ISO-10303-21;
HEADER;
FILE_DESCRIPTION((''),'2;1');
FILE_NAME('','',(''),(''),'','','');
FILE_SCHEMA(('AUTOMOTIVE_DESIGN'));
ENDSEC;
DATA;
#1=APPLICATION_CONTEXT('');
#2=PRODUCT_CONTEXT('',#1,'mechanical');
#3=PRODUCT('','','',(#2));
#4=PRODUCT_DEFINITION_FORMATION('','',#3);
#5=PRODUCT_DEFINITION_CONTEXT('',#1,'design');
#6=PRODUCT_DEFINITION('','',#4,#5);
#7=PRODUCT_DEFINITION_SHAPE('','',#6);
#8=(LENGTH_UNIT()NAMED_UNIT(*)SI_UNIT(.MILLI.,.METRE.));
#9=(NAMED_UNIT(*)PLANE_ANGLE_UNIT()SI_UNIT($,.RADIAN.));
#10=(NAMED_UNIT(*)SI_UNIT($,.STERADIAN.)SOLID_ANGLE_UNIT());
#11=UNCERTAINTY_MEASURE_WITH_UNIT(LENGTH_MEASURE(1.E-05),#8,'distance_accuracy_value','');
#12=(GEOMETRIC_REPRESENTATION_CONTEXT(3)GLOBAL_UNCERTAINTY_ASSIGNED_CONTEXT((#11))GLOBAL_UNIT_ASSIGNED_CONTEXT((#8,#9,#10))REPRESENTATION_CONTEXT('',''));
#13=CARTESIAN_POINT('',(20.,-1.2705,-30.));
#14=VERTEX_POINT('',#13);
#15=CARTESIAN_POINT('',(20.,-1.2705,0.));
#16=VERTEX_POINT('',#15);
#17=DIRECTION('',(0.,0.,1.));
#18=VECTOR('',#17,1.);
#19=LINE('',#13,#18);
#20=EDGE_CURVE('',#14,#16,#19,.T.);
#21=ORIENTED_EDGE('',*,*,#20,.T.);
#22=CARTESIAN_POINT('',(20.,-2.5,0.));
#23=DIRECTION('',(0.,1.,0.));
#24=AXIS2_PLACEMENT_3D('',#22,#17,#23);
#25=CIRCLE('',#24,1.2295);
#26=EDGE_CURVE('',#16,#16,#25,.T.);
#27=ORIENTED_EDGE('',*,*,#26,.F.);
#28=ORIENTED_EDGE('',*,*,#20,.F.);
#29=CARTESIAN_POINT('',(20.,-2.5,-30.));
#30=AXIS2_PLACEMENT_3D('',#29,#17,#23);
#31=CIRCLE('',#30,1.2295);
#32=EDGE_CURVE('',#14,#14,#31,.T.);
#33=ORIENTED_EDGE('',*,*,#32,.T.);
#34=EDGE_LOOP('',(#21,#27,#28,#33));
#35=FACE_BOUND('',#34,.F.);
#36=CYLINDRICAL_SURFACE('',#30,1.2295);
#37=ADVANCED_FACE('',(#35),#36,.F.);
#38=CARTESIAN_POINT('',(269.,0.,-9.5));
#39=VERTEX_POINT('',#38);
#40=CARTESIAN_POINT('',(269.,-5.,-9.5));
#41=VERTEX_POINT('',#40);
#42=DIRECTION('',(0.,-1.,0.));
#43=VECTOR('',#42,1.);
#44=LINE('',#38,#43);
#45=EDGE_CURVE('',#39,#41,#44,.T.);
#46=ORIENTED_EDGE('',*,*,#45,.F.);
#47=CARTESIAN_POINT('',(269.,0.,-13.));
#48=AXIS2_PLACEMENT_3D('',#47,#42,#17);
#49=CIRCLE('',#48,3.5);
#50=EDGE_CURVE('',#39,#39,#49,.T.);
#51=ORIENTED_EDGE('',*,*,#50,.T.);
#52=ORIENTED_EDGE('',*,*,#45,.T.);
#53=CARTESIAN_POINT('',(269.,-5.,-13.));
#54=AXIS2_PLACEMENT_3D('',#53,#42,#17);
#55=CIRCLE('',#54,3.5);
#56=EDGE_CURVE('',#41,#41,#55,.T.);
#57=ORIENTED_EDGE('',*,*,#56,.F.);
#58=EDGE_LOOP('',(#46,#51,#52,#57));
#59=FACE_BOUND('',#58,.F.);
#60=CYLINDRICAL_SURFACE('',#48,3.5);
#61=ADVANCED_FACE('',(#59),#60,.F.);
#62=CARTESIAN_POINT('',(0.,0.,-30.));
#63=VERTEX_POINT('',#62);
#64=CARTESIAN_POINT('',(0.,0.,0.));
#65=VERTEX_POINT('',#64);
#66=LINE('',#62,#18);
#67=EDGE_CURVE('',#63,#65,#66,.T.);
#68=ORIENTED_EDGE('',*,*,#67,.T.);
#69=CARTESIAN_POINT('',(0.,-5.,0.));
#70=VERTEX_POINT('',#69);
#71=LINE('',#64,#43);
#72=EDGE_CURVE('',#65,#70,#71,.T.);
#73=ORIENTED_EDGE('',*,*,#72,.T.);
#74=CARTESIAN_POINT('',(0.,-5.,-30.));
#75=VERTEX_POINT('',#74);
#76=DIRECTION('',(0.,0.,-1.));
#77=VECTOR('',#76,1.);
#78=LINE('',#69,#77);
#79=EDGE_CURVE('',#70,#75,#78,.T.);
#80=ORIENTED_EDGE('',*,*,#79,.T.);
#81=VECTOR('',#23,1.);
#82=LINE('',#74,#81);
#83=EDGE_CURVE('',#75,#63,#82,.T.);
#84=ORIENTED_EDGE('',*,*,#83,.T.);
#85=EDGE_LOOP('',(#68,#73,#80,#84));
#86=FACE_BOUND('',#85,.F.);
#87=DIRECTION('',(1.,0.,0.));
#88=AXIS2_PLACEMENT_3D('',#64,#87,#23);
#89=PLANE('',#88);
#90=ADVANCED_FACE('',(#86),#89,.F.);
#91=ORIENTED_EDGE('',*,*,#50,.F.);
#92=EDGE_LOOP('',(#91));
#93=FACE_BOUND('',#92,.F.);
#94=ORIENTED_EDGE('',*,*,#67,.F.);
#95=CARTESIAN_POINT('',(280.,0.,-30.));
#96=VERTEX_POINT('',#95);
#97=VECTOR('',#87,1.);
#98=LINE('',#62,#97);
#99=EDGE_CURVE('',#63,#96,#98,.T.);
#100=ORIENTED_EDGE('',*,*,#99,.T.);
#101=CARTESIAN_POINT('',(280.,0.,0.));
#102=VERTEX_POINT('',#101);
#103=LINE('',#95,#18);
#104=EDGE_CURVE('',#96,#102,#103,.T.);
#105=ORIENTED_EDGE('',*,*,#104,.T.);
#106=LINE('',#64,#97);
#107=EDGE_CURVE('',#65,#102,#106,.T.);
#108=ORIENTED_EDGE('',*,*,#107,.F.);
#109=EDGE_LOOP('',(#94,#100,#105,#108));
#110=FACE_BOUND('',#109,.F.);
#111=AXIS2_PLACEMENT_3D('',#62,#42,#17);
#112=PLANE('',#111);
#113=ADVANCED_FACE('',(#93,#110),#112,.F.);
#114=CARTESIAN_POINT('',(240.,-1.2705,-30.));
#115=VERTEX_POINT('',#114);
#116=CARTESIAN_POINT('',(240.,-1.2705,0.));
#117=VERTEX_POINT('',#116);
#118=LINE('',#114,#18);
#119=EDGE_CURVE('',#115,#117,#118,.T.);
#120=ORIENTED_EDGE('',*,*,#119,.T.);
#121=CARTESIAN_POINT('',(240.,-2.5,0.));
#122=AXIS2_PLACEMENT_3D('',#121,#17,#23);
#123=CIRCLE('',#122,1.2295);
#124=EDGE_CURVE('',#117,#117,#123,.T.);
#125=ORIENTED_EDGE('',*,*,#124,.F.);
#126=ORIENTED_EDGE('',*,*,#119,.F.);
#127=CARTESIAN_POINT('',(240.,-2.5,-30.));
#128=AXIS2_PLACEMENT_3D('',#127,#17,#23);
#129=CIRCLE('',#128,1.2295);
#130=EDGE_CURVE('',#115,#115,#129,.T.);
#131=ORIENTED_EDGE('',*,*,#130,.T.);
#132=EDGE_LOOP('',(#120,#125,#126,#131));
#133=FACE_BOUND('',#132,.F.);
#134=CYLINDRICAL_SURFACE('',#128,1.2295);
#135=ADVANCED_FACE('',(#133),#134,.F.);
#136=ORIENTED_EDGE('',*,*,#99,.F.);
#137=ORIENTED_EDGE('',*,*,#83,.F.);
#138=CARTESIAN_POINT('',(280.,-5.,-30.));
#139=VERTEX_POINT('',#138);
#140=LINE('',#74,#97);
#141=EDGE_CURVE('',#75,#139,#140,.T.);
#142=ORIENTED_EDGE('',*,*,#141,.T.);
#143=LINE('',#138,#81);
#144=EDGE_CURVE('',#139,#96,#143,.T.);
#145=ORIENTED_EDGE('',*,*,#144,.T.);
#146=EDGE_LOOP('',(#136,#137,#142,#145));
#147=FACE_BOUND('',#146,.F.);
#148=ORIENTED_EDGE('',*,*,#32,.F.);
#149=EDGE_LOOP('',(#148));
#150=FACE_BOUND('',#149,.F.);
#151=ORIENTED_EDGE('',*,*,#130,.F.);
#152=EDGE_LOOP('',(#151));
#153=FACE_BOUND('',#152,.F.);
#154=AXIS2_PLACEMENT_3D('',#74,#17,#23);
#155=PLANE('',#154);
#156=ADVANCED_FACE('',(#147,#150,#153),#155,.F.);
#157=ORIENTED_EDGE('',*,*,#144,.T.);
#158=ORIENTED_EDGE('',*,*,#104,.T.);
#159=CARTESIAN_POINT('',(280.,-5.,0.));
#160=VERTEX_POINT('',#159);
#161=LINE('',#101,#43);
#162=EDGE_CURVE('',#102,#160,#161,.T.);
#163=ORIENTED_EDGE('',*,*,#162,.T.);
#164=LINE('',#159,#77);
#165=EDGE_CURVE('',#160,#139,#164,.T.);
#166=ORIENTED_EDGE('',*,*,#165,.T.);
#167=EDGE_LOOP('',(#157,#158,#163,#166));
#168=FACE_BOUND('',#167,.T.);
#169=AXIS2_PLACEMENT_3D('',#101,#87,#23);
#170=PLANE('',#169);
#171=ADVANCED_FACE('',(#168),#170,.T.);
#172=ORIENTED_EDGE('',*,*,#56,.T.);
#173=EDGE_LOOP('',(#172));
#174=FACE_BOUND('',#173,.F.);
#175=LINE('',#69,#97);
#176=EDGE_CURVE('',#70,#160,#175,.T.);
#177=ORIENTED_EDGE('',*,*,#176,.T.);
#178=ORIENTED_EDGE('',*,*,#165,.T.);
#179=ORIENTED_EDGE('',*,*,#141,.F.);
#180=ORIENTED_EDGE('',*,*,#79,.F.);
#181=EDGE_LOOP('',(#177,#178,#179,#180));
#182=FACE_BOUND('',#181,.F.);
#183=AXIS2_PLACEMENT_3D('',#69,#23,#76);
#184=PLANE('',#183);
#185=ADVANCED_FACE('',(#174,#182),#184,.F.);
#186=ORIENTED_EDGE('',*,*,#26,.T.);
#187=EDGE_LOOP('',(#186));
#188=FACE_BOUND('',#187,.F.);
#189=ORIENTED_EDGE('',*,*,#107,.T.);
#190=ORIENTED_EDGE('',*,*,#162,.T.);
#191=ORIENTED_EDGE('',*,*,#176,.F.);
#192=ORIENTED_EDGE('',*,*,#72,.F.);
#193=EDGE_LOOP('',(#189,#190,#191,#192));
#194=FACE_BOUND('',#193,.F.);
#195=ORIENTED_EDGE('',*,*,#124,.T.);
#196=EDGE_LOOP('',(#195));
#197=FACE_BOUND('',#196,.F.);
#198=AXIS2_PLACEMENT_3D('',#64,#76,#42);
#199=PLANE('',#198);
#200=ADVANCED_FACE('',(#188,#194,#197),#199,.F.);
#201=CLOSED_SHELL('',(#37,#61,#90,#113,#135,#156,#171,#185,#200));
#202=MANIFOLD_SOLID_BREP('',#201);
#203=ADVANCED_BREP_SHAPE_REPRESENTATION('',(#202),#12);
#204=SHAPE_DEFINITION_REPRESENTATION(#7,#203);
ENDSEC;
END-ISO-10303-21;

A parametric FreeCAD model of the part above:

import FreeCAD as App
import Part
import Sketcher
Q = App.Units.Quantity


def add_polygon(sketch, points):
    """Adds a closed chain of lines whose ends are joined by coincident constraints."""
    first, n = sketch.GeometryCount, len(points)
    for a, b in zip(points, points[1:] + points[:1]):
        sketch.addGeometry(Part.LineSegment(App.Vector(*a, 0), App.Vector(*b, 0)), False)
    for i in range(n):
        sketch.addConstraint(Sketcher.Constraint("Coincident", first + i, 2, first + (i + 1) % n, 1))

doc = App.newDocument("Part")
body = doc.addObject("PartDesign::Body", "Body")

# Sketch on YZ plane
sketch1 = body.newObject("Sketcher::SketchObject", "Sketch")
sketch1.AttachmentSupport = (doc.getObject("YZ_Plane"), [""])
sketch1.MapMode = "FlatFace"
add_polygon(sketch1, [(0, -30), (0, 0), (-5, 0), (-5, -30)])  # lines 0-3
sketch1.addConstraint(Sketcher.Constraint("Vertical", 0))
sketch1.addConstraint(Sketcher.Constraint("Horizontal", 1))
sketch1.addConstraint(Sketcher.Constraint("Vertical", 2))
sketch1.addConstraint(Sketcher.Constraint("Horizontal", 3))
sketch1.addConstraint(Sketcher.Constraint("Coincident", 0, 2, -1, 1))
sketch1.addConstraint(Sketcher.Constraint("DistanceX", 1, 2, 1, 1, Q("5 mm")))
sketch1.addConstraint(Sketcher.Constraint("DistanceY", 0, 1, 0, 2, Q("30 mm")))
pad1 = body.newObject("PartDesign::Pad", "Pad")
pad1.Profile = sketch1
pad1.Length = 280

# Sketch on XY plane
sketch2 = body.newObject("Sketcher::SketchObject", "Sketch001")
sketch2.AttachmentSupport = (doc.getObject("XY_Plane"), [""])
sketch2.MapMode = "FlatFace"
sketch2.AttachmentOffset = App.Placement(App.Vector(0, 0, -30), App.Rotation())
sketch2.addGeometry(Part.Circle(App.Vector(20, -2.5, 0), App.Vector(0, 0, 1), 1.2), False)
sketch2.addGeometry(Part.Circle(App.Vector(240, -2.5, 0), App.Vector(0, 0, 1), 1.2), False)
sketch2.addConstraint(Sketcher.Constraint("Equal", 0, 1))
sketch2.addConstraint(Sketcher.Constraint("Horizontal", 0, 3, 1, 3))
sketch2.addConstraint(Sketcher.Constraint("Diameter", 0, Q("2.459 mm")))
sketch2.addConstraint(Sketcher.Constraint("DistanceX", -1, 1, 0, 3, Q("20 mm")))
sketch2.addConstraint(Sketcher.Constraint("DistanceX", -1, 1, 1, 3, Q("240 mm")))
sketch2.addConstraint(Sketcher.Constraint("DistanceY", 0, 3, -1, 1, Q("2.5 mm")))
doc.recompute()
hole = body.newObject("PartDesign::Hole", "Hole")
hole.Profile = sketch2
hole.ThreadType = "None"
hole.Diameter = 2.459
hole.DepthType = "ThroughAll"
hole.Reversed = True

# Sketch on XZ plane
sketch3 = body.newObject("Sketcher::SketchObject", "Sketch002")
sketch3.AttachmentSupport = (doc.getObject("XZ_Plane"), [""])
sketch3.MapMode = "FlatFace"
sketch3.addGeometry(Part.Circle(App.Vector(269, -13, 0), App.Vector(0, 0, 1), 3.5), False)
sketch3.addConstraint(Sketcher.Constraint("Diameter", 0, Q("7 mm")))
sketch3.addConstraint(Sketcher.Constraint("DistanceX", -1, 1, 0, 3, Q("269 mm")))
sketch3.addConstraint(Sketcher.Constraint("DistanceY", 0, 3, -1, 1, Q("13 mm")))
doc.recompute()
hole2 = body.newObject("PartDesign::Hole", "Hole001")
hole2.Profile = sketch3
hole2.ThreadType = "None"
hole2.Diameter = 7
hole2.DepthType = "ThroughAll"
hole2.Reversed = True

doc.recompute()
